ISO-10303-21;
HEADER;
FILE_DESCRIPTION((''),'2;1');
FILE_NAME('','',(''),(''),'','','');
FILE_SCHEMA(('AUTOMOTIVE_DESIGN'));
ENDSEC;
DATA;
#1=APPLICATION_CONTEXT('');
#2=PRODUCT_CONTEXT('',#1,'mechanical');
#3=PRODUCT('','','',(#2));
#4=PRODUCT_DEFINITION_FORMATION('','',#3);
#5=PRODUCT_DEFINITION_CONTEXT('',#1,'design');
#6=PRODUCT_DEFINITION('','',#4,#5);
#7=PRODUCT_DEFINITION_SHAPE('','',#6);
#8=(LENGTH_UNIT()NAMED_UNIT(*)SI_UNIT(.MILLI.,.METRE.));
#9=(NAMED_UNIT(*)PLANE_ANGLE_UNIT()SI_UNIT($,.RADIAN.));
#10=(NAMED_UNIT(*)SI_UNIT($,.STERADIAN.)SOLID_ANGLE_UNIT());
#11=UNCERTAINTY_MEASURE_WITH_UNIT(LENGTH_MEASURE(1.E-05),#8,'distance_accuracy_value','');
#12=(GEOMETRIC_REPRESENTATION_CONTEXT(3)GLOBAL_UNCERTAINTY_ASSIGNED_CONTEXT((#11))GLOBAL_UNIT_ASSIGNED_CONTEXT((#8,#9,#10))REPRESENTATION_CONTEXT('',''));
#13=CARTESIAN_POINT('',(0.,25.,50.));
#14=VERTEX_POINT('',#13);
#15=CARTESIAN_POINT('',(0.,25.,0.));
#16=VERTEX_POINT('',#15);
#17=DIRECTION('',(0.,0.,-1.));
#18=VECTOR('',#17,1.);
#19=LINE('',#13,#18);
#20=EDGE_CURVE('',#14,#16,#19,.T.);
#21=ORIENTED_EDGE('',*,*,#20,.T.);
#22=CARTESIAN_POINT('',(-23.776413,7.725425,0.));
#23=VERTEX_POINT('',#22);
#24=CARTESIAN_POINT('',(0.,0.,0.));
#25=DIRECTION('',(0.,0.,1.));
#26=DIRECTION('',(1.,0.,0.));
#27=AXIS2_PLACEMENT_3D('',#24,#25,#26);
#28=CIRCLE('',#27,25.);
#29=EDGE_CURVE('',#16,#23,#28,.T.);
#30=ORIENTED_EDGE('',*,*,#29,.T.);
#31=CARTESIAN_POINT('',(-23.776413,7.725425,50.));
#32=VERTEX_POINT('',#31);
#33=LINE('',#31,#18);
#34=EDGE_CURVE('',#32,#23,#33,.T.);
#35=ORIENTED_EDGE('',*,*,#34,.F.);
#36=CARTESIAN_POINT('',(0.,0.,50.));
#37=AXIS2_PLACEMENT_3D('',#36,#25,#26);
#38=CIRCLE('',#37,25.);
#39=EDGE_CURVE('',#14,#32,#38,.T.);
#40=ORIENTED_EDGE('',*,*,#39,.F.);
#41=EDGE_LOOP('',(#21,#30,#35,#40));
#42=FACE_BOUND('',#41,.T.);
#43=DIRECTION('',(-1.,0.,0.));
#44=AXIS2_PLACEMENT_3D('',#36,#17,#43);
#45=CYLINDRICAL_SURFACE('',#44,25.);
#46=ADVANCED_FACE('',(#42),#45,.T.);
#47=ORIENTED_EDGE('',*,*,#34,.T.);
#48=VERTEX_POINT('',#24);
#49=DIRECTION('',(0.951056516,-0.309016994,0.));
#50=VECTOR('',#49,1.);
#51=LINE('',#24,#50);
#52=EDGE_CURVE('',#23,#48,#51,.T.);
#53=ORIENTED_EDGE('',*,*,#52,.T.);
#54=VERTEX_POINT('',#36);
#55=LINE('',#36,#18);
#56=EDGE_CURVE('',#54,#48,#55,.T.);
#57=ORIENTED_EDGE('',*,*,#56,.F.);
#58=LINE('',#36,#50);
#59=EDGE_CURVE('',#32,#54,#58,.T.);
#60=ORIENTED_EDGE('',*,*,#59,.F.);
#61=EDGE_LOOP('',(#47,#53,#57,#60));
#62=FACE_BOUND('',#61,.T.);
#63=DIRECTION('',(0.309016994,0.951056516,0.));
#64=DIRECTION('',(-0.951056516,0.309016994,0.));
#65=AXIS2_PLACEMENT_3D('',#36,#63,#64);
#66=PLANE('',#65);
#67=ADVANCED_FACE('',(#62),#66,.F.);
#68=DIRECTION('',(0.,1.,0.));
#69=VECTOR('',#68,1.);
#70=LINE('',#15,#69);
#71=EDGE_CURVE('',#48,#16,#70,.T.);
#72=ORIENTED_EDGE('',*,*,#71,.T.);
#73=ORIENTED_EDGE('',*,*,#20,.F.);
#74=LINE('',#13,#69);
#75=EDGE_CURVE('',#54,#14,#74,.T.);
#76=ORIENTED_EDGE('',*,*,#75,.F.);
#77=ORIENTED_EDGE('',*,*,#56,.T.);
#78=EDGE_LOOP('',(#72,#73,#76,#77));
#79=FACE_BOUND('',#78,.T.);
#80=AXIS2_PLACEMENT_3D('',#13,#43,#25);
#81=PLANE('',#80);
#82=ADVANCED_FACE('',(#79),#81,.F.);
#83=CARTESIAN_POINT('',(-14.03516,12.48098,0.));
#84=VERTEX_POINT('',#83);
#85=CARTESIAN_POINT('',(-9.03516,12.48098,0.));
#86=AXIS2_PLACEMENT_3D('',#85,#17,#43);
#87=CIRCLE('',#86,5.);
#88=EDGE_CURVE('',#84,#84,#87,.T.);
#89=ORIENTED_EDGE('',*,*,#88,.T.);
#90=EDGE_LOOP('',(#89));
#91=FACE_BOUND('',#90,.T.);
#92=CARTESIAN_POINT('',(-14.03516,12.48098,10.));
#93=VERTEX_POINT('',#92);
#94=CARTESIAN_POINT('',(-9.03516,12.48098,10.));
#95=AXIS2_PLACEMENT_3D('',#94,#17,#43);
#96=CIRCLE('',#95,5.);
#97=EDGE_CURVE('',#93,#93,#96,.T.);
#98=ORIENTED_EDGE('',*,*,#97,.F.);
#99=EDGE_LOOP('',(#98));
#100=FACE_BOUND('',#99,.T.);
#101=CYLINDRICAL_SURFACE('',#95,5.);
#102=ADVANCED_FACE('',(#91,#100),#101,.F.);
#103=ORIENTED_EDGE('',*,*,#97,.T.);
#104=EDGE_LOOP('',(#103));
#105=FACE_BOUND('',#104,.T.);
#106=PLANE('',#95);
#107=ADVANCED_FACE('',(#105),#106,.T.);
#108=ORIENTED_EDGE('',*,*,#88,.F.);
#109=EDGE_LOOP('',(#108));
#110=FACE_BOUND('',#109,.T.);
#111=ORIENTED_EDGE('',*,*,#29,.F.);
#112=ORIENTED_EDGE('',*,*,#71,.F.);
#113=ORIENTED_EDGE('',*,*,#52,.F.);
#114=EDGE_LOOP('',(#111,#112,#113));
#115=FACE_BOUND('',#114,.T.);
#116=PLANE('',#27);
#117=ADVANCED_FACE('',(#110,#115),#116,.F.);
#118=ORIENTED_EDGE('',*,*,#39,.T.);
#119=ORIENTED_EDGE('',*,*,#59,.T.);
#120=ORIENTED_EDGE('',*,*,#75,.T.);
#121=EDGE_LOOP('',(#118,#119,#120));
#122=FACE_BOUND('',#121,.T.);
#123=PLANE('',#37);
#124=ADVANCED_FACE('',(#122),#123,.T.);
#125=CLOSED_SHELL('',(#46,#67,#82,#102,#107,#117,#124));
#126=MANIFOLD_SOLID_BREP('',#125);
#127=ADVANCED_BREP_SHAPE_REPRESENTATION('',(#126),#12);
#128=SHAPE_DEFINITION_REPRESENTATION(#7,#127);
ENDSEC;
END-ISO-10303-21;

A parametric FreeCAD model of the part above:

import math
import FreeCAD as App
import Part
import Sketcher

V = App.Vector
Q = App.Units.Quantity

doc = App.newDocument("Part")
body = doc.addObject("PartDesign::Body", "Body")

# Sketch on XY plane
sketch1 = doc.addObject("Sketcher::SketchObject", "Sketch")
body.addObject(sketch1)
sketch1.AttachmentSupport = (doc.XY_Plane, [""])
sketch1.MapMode = "FlatFace"
sketch1.addGeometry([
    Part.LineSegment(V(0, 0, 0), V(0, 25, 0)),
    Part.ArcOfCircle(Part.Circle(V(0, 0, 0), V(0, 0, 1), 25), math.radians(90), math.radians(162)),
    Part.LineSegment(V(-24, 8, 0), V(0, 0, 0)),
], False)
sketch1.addConstraint([
    Sketcher.Constraint("Coincident", 0, 2, 1, 1),
    Sketcher.Constraint("Coincident", 1, 2, 2, 1),
    Sketcher.Constraint("Coincident", 2, 2, 0, 1),
    Sketcher.Constraint("Vertical", 0),
    Sketcher.Constraint("Coincident", 1, 3, -1, 1),
    Sketcher.Constraint("Coincident", 2, 2, -1, 1),
    Sketcher.Constraint("Radius", 1, 25.0),
    Sketcher.Constraint("Angle", 2, Q("-18 deg")),
])
pad1 = doc.addObject("PartDesign::Pad", "Pad")
body.addObject(pad1)
pad1.Profile = sketch1
pad1.Length = 50

# Sketch on XY plane
sketch2 = doc.addObject("Sketcher::SketchObject", "Sketch001")
body.addObject(sketch2)
sketch2.AttachmentSupport = (doc.XY_Plane, [""])
sketch2.MapMode = "FlatFace"
sketch2.addGeometry(Part.Circle(V(-9, 12, 0), V(0, 0, 1), 5), False)
sketch2.addConstraint([
    Sketcher.Constraint("Diameter", 0, 10.0),
    Sketcher.Constraint("DistanceX", 0, 3, -1, 1, 9.03516),
    Sketcher.Constraint("DistanceY", -1, 1, 0, 3, 12.48098),
])
pocket1 = doc.addObject("PartDesign::Pocket", "Pocket")
body.addObject(pocket1)
pocket1.Profile = sketch2
pocket1.Length = 10
pocket1.Reversed = True

doc.recompute()
